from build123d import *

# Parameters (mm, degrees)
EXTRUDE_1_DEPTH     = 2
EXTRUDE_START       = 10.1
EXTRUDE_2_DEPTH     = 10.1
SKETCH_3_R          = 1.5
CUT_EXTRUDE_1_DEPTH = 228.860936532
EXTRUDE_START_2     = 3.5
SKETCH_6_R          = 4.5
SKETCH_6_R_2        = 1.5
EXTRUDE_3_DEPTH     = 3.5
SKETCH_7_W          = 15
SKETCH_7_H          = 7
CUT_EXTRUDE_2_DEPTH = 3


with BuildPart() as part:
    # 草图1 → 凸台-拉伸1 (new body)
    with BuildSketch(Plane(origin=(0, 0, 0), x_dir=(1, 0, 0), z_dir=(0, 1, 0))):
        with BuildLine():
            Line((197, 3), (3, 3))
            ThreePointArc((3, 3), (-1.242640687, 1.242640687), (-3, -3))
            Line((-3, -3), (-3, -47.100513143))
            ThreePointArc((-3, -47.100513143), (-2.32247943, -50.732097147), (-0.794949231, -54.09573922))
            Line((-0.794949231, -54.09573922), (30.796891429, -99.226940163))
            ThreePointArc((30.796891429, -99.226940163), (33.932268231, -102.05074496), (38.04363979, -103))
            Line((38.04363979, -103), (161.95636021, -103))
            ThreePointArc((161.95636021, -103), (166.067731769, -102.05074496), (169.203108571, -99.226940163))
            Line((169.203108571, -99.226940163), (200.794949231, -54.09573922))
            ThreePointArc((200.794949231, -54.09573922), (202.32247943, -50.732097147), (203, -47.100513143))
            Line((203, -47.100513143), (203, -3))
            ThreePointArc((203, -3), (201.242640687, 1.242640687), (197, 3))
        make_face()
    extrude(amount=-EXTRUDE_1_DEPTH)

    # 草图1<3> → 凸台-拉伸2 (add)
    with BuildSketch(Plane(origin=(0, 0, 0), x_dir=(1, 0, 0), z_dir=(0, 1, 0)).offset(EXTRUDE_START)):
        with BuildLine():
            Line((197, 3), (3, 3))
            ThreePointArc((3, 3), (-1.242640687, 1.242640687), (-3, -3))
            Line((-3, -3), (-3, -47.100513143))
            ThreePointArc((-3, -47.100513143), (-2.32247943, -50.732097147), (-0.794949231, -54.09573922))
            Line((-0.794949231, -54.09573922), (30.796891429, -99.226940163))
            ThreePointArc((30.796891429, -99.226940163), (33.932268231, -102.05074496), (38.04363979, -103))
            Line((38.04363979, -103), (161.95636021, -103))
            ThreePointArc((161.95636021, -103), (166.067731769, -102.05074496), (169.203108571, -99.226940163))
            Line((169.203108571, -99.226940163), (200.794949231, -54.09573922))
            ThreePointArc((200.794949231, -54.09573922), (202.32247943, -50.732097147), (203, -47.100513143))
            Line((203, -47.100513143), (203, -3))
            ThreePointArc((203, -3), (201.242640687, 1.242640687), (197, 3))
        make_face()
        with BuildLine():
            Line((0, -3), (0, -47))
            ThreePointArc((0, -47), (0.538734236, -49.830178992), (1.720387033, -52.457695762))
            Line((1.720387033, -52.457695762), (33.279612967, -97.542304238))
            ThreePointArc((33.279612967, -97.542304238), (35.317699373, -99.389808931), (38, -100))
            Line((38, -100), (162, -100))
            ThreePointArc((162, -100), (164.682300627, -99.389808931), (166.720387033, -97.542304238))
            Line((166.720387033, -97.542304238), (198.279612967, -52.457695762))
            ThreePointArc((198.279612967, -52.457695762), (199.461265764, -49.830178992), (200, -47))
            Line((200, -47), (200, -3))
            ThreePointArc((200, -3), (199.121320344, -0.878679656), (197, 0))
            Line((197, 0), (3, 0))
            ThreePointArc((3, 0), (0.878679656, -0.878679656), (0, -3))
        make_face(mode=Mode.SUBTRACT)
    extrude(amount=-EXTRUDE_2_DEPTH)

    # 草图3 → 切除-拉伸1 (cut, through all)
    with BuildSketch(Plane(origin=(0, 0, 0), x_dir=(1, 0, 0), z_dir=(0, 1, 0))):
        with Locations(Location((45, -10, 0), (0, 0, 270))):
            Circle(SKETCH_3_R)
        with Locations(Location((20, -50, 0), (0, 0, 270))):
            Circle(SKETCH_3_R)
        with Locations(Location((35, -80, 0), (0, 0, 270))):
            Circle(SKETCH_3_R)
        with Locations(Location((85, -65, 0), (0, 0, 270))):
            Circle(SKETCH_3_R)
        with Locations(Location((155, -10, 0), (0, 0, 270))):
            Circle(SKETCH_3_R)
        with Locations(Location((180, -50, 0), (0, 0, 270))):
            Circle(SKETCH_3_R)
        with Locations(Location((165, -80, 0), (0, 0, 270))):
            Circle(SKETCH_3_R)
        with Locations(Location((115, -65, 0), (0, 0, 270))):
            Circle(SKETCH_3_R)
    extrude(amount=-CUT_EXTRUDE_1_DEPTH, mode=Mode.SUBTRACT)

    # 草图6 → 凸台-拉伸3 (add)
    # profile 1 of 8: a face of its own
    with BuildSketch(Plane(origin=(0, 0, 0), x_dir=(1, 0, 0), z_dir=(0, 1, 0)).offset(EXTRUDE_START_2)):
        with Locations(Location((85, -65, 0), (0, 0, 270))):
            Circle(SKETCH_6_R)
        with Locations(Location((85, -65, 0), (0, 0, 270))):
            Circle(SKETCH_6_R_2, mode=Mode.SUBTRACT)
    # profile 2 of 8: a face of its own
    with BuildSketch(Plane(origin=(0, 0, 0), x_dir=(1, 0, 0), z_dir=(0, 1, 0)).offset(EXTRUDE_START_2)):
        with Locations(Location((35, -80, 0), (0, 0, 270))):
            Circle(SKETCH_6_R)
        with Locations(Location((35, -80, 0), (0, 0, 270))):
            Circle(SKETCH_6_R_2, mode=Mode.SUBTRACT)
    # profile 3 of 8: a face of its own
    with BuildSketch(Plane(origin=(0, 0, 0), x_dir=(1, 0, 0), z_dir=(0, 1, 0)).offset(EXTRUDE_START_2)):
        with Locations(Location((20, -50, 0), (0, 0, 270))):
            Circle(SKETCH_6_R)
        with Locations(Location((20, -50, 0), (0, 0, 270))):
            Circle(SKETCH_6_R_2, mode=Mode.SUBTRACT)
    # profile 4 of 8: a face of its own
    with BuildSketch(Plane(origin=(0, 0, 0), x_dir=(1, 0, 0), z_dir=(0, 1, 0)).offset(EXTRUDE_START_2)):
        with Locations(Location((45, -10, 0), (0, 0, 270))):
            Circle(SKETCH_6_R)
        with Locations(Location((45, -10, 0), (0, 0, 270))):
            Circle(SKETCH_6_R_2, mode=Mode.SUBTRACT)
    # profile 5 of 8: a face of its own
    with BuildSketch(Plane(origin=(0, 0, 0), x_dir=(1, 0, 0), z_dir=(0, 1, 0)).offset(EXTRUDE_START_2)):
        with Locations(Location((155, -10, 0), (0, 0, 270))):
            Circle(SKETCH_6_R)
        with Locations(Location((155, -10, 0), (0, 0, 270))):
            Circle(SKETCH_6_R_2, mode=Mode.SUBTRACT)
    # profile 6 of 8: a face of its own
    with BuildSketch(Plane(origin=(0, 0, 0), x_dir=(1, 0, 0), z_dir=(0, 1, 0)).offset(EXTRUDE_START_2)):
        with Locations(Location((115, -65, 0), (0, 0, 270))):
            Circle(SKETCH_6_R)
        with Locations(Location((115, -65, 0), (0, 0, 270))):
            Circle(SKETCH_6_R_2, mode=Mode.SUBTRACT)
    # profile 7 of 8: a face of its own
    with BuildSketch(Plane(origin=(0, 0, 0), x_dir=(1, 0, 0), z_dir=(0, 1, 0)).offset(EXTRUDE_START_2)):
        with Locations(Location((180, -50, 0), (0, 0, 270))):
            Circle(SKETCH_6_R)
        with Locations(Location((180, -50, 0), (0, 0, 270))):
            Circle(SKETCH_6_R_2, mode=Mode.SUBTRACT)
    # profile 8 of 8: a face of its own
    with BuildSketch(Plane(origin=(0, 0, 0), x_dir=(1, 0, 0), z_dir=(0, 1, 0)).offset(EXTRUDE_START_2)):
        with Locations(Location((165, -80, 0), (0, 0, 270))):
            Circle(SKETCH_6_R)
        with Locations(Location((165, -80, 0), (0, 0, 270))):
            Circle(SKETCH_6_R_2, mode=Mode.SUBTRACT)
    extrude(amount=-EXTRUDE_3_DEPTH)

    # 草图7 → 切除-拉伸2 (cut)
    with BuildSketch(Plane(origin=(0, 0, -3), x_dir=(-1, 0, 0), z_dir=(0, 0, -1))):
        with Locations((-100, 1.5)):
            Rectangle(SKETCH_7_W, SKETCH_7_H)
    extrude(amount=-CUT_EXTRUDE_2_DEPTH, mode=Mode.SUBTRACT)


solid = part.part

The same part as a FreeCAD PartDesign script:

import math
import FreeCAD as App
import Part
import Sketcher

V = App.Vector
Q = App.Units.Quantity


def add_polygon(sketch, points):
    """Adds a closed chain of lines whose ends are joined by coincident constraints."""
    first, n = sketch.GeometryCount, len(points)
    for a, b in zip(points, points[1:] + points[:1]):
        sketch.addGeometry(Part.LineSegment(App.Vector(*a, 0), App.Vector(*b, 0)), False)
    for i in range(n):
        sketch.addConstraint(Sketcher.Constraint("Coincident", first + i, 2, first + (i + 1) % n, 1))

doc = App.newDocument("Part")
body = doc.addObject("PartDesign::Body", "Body")

# Sketch on XZ plane
sketch1 = body.newObject("Sketcher::SketchObject", "Sketch")
sketch1.AttachmentSupport = (doc.getObject("XZ_Plane"), [""])
sketch1.MapMode = "FlatFace"
sketch1.addGeometry(Part.LineSegment(V(197, -3, 0), V(3, -3, 0)), False)
sketch1.addGeometry(Part.ArcOfCircle(Part.Circle(V(3, 3, 0), V(0, 0, 1), 6), math.radians(180), math.radians(270)), False)
sketch1.addGeometry(Part.LineSegment(V(-3, 3, 0), V(-3, 47, 0)), False)
sketch1.addGeometry(Part.ArcOfCircle(Part.Circle(V(12, 46, 0), V(0, 0, 1), 15), math.radians(149), math.radians(176)), False)
sketch1.addGeometry(Part.LineSegment(V(-1, 54, 0), V(31, 99, 0)), False)
sketch1.addGeometry(Part.ArcOfCircle(Part.Circle(V(38, 95, 0), V(0, 0, 1), 8), math.radians(88), math.radians(147)), False)
sketch1.addGeometry(Part.LineSegment(V(38, 103, 0), V(162, 103, 0)), False)
sketch1.addGeometry(Part.ArcOfCircle(Part.Circle(V(162, 95, 0), V(0, 0, 1), 8), math.radians(33), math.radians(92)), False)
sketch1.addGeometry(Part.LineSegment(V(169, 99, 0), V(201, 54, 0)), False)
sketch1.addGeometry(Part.ArcOfCircle(Part.Circle(V(188, 46, 0), V(0, 0, 1), 15), math.radians(4), math.radians(31)), False)
sketch1.addGeometry(Part.LineSegment(V(203, 47, 0), V(203, 3, 0)), False)
sketch1.addGeometry(Part.ArcOfCircle(Part.Circle(V(197, 3, 0), V(0, 0, 1), 6), math.radians(-90), math.radians(0)), False)
sketch1.addConstraint(Sketcher.Constraint("Tangent", 0, 2, 1, 2))
sketch1.addConstraint(Sketcher.Constraint("Tangent", 1, 1, 2, 1))
sketch1.addConstraint(Sketcher.Constraint("Coincident", 2, 2, 3, 2))
sketch1.addConstraint(Sketcher.Constraint("Coincident", 3, 1, 4, 1))
sketch1.addConstraint(Sketcher.Constraint("Coincident", 4, 2, 5, 2))
sketch1.addConstraint(Sketcher.Constraint("Coincident", 5, 1, 6, 1))
sketch1.addConstraint(Sketcher.Constraint("Coincident", 6, 2, 7, 2))
sketch1.addConstraint(Sketcher.Constraint("Coincident", 7, 1, 8, 1))
sketch1.addConstraint(Sketcher.Constraint("Coincident", 8, 2, 9, 2))
sketch1.addConstraint(Sketcher.Constraint("Coincident", 9, 1, 10, 1))
sketch1.addConstraint(Sketcher.Constraint("Tangent", 10, 2, 11, 2))
sketch1.addConstraint(Sketcher.Constraint("Tangent", 11, 1, 0, 1))
sketch1.addConstraint(Sketcher.Constraint("Horizontal", 0))
sketch1.addConstraint(Sketcher.Constraint("Vertical", 2))
sketch1.addConstraint(Sketcher.Constraint("Horizontal", 6))
sketch1.addConstraint(Sketcher.Constraint("Vertical", 10))
sketch1.addConstraint(Sketcher.Constraint("Equal", 5, 7))
sketch1.addConstraint(Sketcher.Constraint("Equal", 3, 9))
sketch1.addConstraint(Sketcher.Constraint("Equal", 1, 11))
sketch1.addConstraint(Sketcher.Constraint("Symmetric", 0, 2, 1, 1, -1, 1))
sketch1.addConstraint(Sketcher.Constraint("Horizontal", 5, 3, 7, 3))
sketch1.addConstraint(Sketcher.Constraint("Horizontal", 3, 3, 9, 3))
sketch1.addConstraint(Sketcher.Constraint("Horizontal", 4, 2, 7, 1))
sketch1.addConstraint(Sketcher.Constraint("Horizontal", 3, 1, 8, 2))
sketch1.addConstraint(Sketcher.Constraint("Horizontal", 2, 2, 9, 1))
sketch1.addConstraint(Sketcher.Constraint("Equal", 4, 8))
sketch1.addConstraint(Sketcher.Constraint("Radius", 1, Q("6 mm")))
sketch1.addConstraint(Sketcher.Constraint("DistanceX", 0, 2, 0, 1, Q("194 mm")))
sketch1.addConstraint(Sketcher.Constraint("DistanceY", -1, 1, 5, 1, Q("103 mm")))
sketch1.addConstraint(Sketcher.Constraint("Radius", 3, Q("15.312859 mm")))
sketch1.addConstraint(Sketcher.Constraint("Radius", 5, Q("8.424518 mm")))
sketch1.addConstraint(Sketcher.Constraint("DistanceX", 6, 1, 6, 2, Q("123.91272 mm")))
sketch1.addConstraint(Sketcher.Constraint("DistanceY", 3, 1, 4, 2, Q("45.131201 mm")))
sketch1.addConstraint(Sketcher.Constraint("Distance", 4, Q("55.089651 mm")))
sketch1.addConstraint(Sketcher.Constraint("DistanceY", 2, 1, 2, 2, Q("44.100513 mm")))
sketch1.addConstraint(Sketcher.Constraint("DistanceY", -1, 1, 3, 3, Q("46.128449 mm")))
sketch1.addConstraint(Sketcher.Constraint("DistanceX", 3, 1, -1, 1, Q("0.794949 mm")))
pad1 = body.newObject("PartDesign::Pad", "Pad")
pad1.Profile = sketch1
pad1.Length = 2

# Sketch on XZ plane
sketch2 = body.newObject("Sketcher::SketchObject", "Sketch001")
sketch2.AttachmentSupport = (doc.getObject("XZ_Plane"), [""])
sketch2.MapMode = "FlatFace"
sketch2.AttachmentOffset = App.Placement(V(0, 0, -10.1), App.Rotation())
sketch2.addGeometry(Part.LineSegment(V(197, -3, 0), V(3, -3, 0)), False)
sketch2.addGeometry(Part.ArcOfCircle(Part.Circle(V(3, 3, 0), V(0, 0, 1), 6), math.radians(180), math.radians(270)), False)
sketch2.addGeometry(Part.LineSegment(V(-3, 3, 0), V(-3, 47.1, 0)), False)
sketch2.addGeometry(Part.ArcOfCircle(Part.Circle(V(12.3, 46.1, 0), V(0, 0, 1), 15.3), math.radians(149), math.radians(176)), False)
sketch2.addGeometry(Part.LineSegment(V(-0.8, 54.1, 0), V(30.8, 99.2, 0)), False)
sketch2.addGeometry(Part.ArcOfCircle(Part.Circle(V(37.8, 94.6, 0), V(0, 0, 1), 8.4), math.radians(88), math.radians(147)), False)
sketch2.addGeometry(Part.LineSegment(V(38, 103, 0), V(162, 103, 0)), False)
sketch2.addGeometry(Part.ArcOfCircle(Part.Circle(V(162.2, 94.6, 0), V(0, 0, 1), 8.4), math.radians(33), math.radians(92)), False)
sketch2.addGeometry(Part.LineSegment(V(169.2, 99.2, 0), V(200.8, 54.1, 0)), False)
sketch2.addGeometry(Part.ArcOfCircle(Part.Circle(V(187.7, 46.1, 0), V(0, 0, 1), 15.3), math.radians(4), math.radians(31)), False)
sketch2.addGeometry(Part.LineSegment(V(203, 47.1, 0), V(203, 3, 0)), False)
sketch2.addGeometry(Part.ArcOfCircle(Part.Circle(V(197, 3, 0), V(0, 0, 1), 6), math.radians(-90), math.radians(0)), False)
sketch2.addGeometry(Part.LineSegment(V(0, 47, 0), V(0, 3, 0)), False)
sketch2.addGeometry(Part.ArcOfCircle(Part.Circle(V(3, 3, 0), V(0, 0, 1), 3), math.radians(180), math.radians(270)), False)
sketch2.addGeometry(Part.LineSegment(V(3, 0, 0), V(197, 0, 0)), False)
sketch2.addGeometry(Part.ArcOfCircle(Part.Circle(V(197, 3, 0), V(0, 0, 1), 3), math.radians(-90), math.radians(0)), False)
sketch2.addGeometry(Part.LineSegment(V(200, 3, 0), V(200, 47, 0)), False)
sketch2.addGeometry(Part.ArcOfCircle(Part.Circle(V(187.7, 46.1, 0), V(0, 0, 1), 12.3), math.radians(4), math.radians(31)), False)
sketch2.addGeometry(Part.LineSegment(V(198.3, 52.5, 0), V(166.7, 97.5, 0)), False)
sketch2.addGeometry(Part.ArcOfCircle(Part.Circle(V(162.2, 94.6, 0), V(0, 0, 1), 5.4), math.radians(33), math.radians(92)), False)
sketch2.addGeometry(Part.LineSegment(V(162, 100, 0), V(38, 100, 0)), False)
sketch2.addGeometry(Part.ArcOfCircle(Part.Circle(V(37.8, 94.6, 0), V(0, 0, 1), 5.4), math.radians(88), math.radians(147)), False)
sketch2.addGeometry(Part.LineSegment(V(33.3, 97.5, 0), V(1.7, 52.5, 0)), False)
sketch2.addGeometry(Part.ArcOfCircle(Part.Circle(V(12.3, 46.1, 0), V(0, 0, 1), 12.3), math.radians(149), math.radians(176)), False)
sketch2.addConstraint(Sketcher.Constraint("Tangent", 0, 2, 1, 2))
sketch2.addConstraint(Sketcher.Constraint("Tangent", 1, 1, 2, 1))
sketch2.addConstraint(Sketcher.Constraint("Coincident", 2, 2, 3, 2))
sketch2.addConstraint(Sketcher.Constraint("Coincident", 3, 1, 4, 1))
sketch2.addConstraint(Sketcher.Constraint("Coincident", 4, 2, 5, 2))
sketch2.addConstraint(Sketcher.Constraint("Coincident", 5, 1, 6, 1))
sketch2.addConstraint(Sketcher.Constraint("Coincident", 6, 2, 7, 2))
sketch2.addConstraint(Sketcher.Constraint("Coincident", 7, 1, 8, 1))
sketch2.addConstraint(Sketcher.Constraint("Coincident", 8, 2, 9, 2))
sketch2.addConstraint(Sketcher.Constraint("Coincident", 9, 1, 10, 1))
sketch2.addConstraint(Sketcher.Constraint("Tangent", 10, 2, 11, 2))
sketch2.addConstraint(Sketcher.Constraint("Tangent", 11, 1, 0, 1))
sketch2.addConstraint(Sketcher.Constraint("Tangent", 12, 2, 13, 1))
sketch2.addConstraint(Sketcher.Constraint("Tangent", 13, 2, 14, 1))
sketch2.addConstraint(Sketcher.Constraint("Tangent", 14, 2, 15, 1))
sketch2.addConstraint(Sketcher.Constraint("Tangent", 15, 2, 16, 1))
sketch2.addConstraint(Sketcher.Constraint("Coincident", 16, 2, 17, 1))
sketch2.addConstraint(Sketcher.Constraint("Coincident", 17, 2, 18, 1))
sketch2.addConstraint(Sketcher.Constraint("Coincident", 18, 2, 19, 1))
sketch2.addConstraint(Sketcher.Constraint("Coincident", 19, 2, 20, 1))
sketch2.addConstraint(Sketcher.Constraint("Coincident", 20, 2, 21, 1))
sketch2.addConstraint(Sketcher.Constraint("Coincident", 21, 2, 22, 1))
sketch2.addConstraint(Sketcher.Constraint("Coincident", 22, 2, 23, 1))
sketch2.addConstraint(Sketcher.Constraint("Coincident", 23, 2, 12, 1))
sketch2.addConstraint(Sketcher.Constraint("Horizontal", 0))
sketch2.addConstraint(Sketcher.Constraint("Vertical", 2))
sketch2.addConstraint(Sketcher.Constraint("Horizontal", 6))
sketch2.addConstraint(Sketcher.Constraint("Vertical", 10))
sketch2.addConstraint(Sketcher.Constraint("Vertical", 12))
sketch2.addConstraint(Sketcher.Constraint("Horizontal", 14))
sketch2.addConstraint(Sketcher.Constraint("Vertical", 16))
sketch2.addConstraint(Sketcher.Constraint("Horizontal", 20))
sketch2.addConstraint(Sketcher.Constraint("Coincident", 13, 3, 1, 3))
sketch2.addConstraint(Sketcher.Constraint("Coincident", 15, 3, 11, 3))
sketch2.addConstraint(Sketcher.Constraint("Coincident", 17, 3, 9, 3))
sketch2.addConstraint(Sketcher.Constraint("Coincident", 19, 3, 7, 3))
sketch2.addConstraint(Sketcher.Constraint("Coincident", 21, 3, 5, 3))
sketch2.addConstraint(Sketcher.Constraint("Coincident", 23, 3, 3, 3))
sketch2.addConstraint(Sketcher.Constraint("Equal", 5, 7))
sketch2.addConstraint(Sketcher.Constraint("Equal", 3, 9))
sketch2.addConstraint(Sketcher.Constraint("Equal", 1, 11))
sketch2.addConstraint(Sketcher.Constraint("Equal", 19, 21))
sketch2.addConstraint(Sketcher.Constraint("Equal", 17, 23))
sketch2.addConstraint(Sketcher.Constraint("Symmetric", 0, 2, 1, 1, -1, 1))
sketch2.addConstraint(Sketcher.Constraint("PointOnObject", 12, 2, -2))
sketch2.addConstraint(Sketcher.Constraint("Parallel", 8, 18))
sketch2.addConstraint(Sketcher.Constraint("Parallel", 4, 22))
sketch2.addConstraint(Sketcher.Constraint("Horizontal", 5, 3, 7, 3))
sketch2.addConstraint(Sketcher.Constraint("Horizontal", 3, 3, 9, 3))
sketch2.addConstraint(Sketcher.Constraint("Horizontal", 4, 2, 7, 1))
sketch2.addConstraint(Sketcher.Constraint("Horizontal", 3, 1, 8, 2))
sketch2.addConstraint(Sketcher.Constraint("Horizontal", 2, 2, 9, 1))
sketch2.addConstraint(Sketcher.Constraint("Horizontal", 18, 2, 21, 2))
sketch2.addConstraint(Sketcher.Constraint("Equal", 4, 8))
sketch2.addConstraint(Sketcher.Constraint("Radius", 1, Q("6 mm")))
sketch2.addConstraint(Sketcher.Constraint("DistanceX", 0, 2, 0, 1, Q("194 mm")))
sketch2.addConstraint(Sketcher.Constraint("DistanceX", 20, 2, 20, 1, Q("124 mm")))
sketch2.addConstraint(Sketcher.Constraint("DistanceY", 12, 2, 12, 1, Q("44 mm")))
sketch2.addConstraint(Sketcher.Constraint("DistanceY", -1, 1, 5, 1, Q("103 mm")))
sketch2.addConstraint(Sketcher.Constraint("DistanceY", -1, 1, 19, 2, Q("100 mm")))
sketch2.addConstraint(Sketcher.Constraint("Radius", 3, Q("15.312859 mm")))
sketch2.addConstraint(Sketcher.Constraint("Radius", 17, Q("12.312859 mm")))
sketch2.addConstraint(Sketcher.Constraint("Radius", 5, Q("8.424518 mm")))
sketch2.addConstraint(Sketcher.Constraint("Radius", 19, Q("5.424518 mm")))
sketch2.addConstraint(Sketcher.Constraint("DistanceX", 6, 1, 6, 2, Q("123.91272 mm")))
sketch2.addConstraint(Sketcher.Constraint("DistanceY", 3, 1, 4, 2, Q("45.131201 mm")))
sketch2.addConstraint(Sketcher.Constraint("Distance", 4, Q("55.089651 mm")))
sketch2.addConstraint(Sketcher.Constraint("Distance", 18, Q("55.032778 mm")))
sketch2.addConstraint(Sketcher.Constraint("DistanceY", 2, 1, 2, 2, Q("44.100513 mm")))
pad2 = body.newObject("PartDesign::Pad", "Pad001")
pad2.Profile = sketch2
pad2.Length = 10.1

# Sketch on XZ plane
sketch3 = body.newObject("Sketcher::SketchObject", "Sketch002")
sketch3.AttachmentSupport = (doc.getObject("XZ_Plane"), [""])
sketch3.MapMode = "FlatFace"
sketch3.addGeometry(Part.Circle(V(45, 10, 0), V(0, 0, 1), 1.5), False)
sketch3.addGeometry(Part.Circle(V(20, 50, 0), V(0, 0, 1), 1.5), False)
sketch3.addGeometry(Part.Circle(V(35, 80, 0), V(0, 0, 1), 1.5), False)
sketch3.addGeometry(Part.Circle(V(85, 65, 0), V(0, 0, 1), 1.5), False)
sketch3.addGeometry(Part.Circle(V(155, 10, 0), V(0, 0, 1), 1.5), False)
sketch3.addGeometry(Part.Circle(V(180, 50, 0), V(0, 0, 1), 1.5), False)
sketch3.addGeometry(Part.Circle(V(165, 80, 0), V(0, 0, 1), 1.5), False)
sketch3.addGeometry(Part.Circle(V(115, 65, 0), V(0, 0, 1), 1.5), False)
sketch3.addConstraint(Sketcher.Constraint("Equal", 0, 1))
sketch3.addConstraint(Sketcher.Constraint("Equal", 1, 2))
sketch3.addConstraint(Sketcher.Constraint("Equal", 2, 3))
sketch3.addConstraint(Sketcher.Constraint("Equal", 3, 4))
sketch3.addConstraint(Sketcher.Constraint("Equal", 4, 5))
sketch3.addConstraint(Sketcher.Constraint("Equal", 5, 6))
sketch3.addConstraint(Sketcher.Constraint("Equal", 6, 7))
sketch3.addConstraint(Sketcher.Constraint("Horizontal", 0, 3, 4, 3))
sketch3.addConstraint(Sketcher.Constraint("Horizontal", 1, 3, 5, 3))
sketch3.addConstraint(Sketcher.Constraint("Horizontal", 2, 3, 6, 3))
sketch3.addConstraint(Sketcher.Constraint("Horizontal", 3, 3, 7, 3))
sketch3.addConstraint(Sketcher.Constraint("Diameter", 0, Q("3 mm")))
sketch3.addConstraint(Sketcher.Constraint("DistanceX", -1, 1, 0, 3, Q("45 mm")))
sketch3.addConstraint(Sketcher.Constraint("DistanceY", -1, 1, 0, 3, Q("10 mm")))
sketch3.addConstraint(Sketcher.Constraint("DistanceX", -1, 1, 1, 3, Q("20 mm")))
sketch3.addConstraint(Sketcher.Constraint("DistanceY", -1, 1, 1, 3, Q("50 mm")))
sketch3.addConstraint(Sketcher.Constraint("DistanceX", -1, 1, 2, 3, Q("35 mm")))
sketch3.addConstraint(Sketcher.Constraint("DistanceY", -1, 1, 2, 3, Q("80 mm")))
sketch3.addConstraint(Sketcher.Constraint("DistanceX", -1, 1, 3, 3, Q("85 mm")))
sketch3.addConstraint(Sketcher.Constraint("DistanceY", -1, 1, 3, 3, Q("65 mm")))
sketch3.addConstraint(Sketcher.Constraint("DistanceX", -1, 1, 4, 3, Q("155 mm")))
sketch3.addConstraint(Sketcher.Constraint("DistanceX", -1, 1, 5, 3, Q("180 mm")))
sketch3.addConstraint(Sketcher.Constraint("DistanceX", -1, 1, 6, 3, Q("165 mm")))
sketch3.addConstraint(Sketcher.Constraint("DistanceX", -1, 1, 7, 3, Q("115 mm")))
pocket1 = body.newObject("PartDesign::Pocket", "Pocket")
pocket1.Profile = sketch3
pocket1.Type = "ThroughAll"
pocket1.Reversed = True

# Sketch on XZ plane
sketch4 = body.newObject("Sketcher::SketchObject", "Sketch003")
sketch4.AttachmentSupport = (doc.getObject("XZ_Plane"), [""])
sketch4.MapMode = "FlatFace"
sketch4.AttachmentOffset = App.Placement(V(0, 0, -3.5), App.Rotation())
sketch4.addGeometry(Part.Circle(V(85, 65, 0), V(0, 0, 1), 4.5), False)
sketch4.addGeometry(Part.Circle(V(85, 65, 0), V(0, 0, 1), 1.5), False)
sketch4.addGeometry(Part.Circle(V(35, 80, 0), V(0, 0, 1), 4.5), False)
sketch4.addGeometry(Part.Circle(V(35, 80, 0), V(0, 0, 1), 1.5), False)
sketch4.addGeometry(Part.Circle(V(20, 50, 0), V(0, 0, 1), 4.5), False)
sketch4.addGeometry(Part.Circle(V(20, 50, 0), V(0, 0, 1), 1.5), False)
sketch4.addGeometry(Part.Circle(V(45, 10, 0), V(0, 0, 1), 4.5), False)
sketch4.addGeometry(Part.Circle(V(45, 10, 0), V(0, 0, 1), 1.5), False)
sketch4.addGeometry(Part.Circle(V(155, 10, 0), V(0, 0, 1), 4.5), False)
sketch4.addGeometry(Part.Circle(V(155, 10, 0), V(0, 0, 1), 1.5), False)
sketch4.addGeometry(Part.Circle(V(115, 65, 0), V(0, 0, 1), 4.5), False)
sketch4.addGeometry(Part.Circle(V(115, 65, 0), V(0, 0, 1), 1.5), False)
sketch4.addGeometry(Part.Circle(V(180, 50, 0), V(0, 0, 1), 4.5), False)
sketch4.addGeometry(Part.Circle(V(180, 50, 0), V(0, 0, 1), 1.5), False)
sketch4.addGeometry(Part.Circle(V(165, 80, 0), V(0, 0, 1), 4.5), False)
sketch4.addGeometry(Part.Circle(V(165, 80, 0), V(0, 0, 1), 1.5), False)
sketch4.addConstraint(Sketcher.Constraint("Coincident", 1, 3, 0, 3))
sketch4.addConstraint(Sketcher.Constraint("Coincident", 3, 3, 2, 3))
sketch4.addConstraint(Sketcher.Constraint("Coincident", 5, 3, 4, 3))
sketch4.addConstraint(Sketcher.Constraint("Coincident", 7, 3, 6, 3))
sketch4.addConstraint(Sketcher.Constraint("Coincident", 9, 3, 8, 3))
sketch4.addConstraint(Sketcher.Constraint("Coincident", 11, 3, 10, 3))
sketch4.addConstraint(Sketcher.Constraint("Coincident", 13, 3, 12, 3))
sketch4.addConstraint(Sketcher.Constraint("Coincident", 15, 3, 14, 3))
sketch4.addConstraint(Sketcher.Constraint("Equal", 0, 2))
sketch4.addConstraint(Sketcher.Constraint("Equal", 1, 3))
sketch4.addConstraint(Sketcher.Constraint("Equal", 2, 4))
sketch4.addConstraint(Sketcher.Constraint("Equal", 3, 5))
sketch4.addConstraint(Sketcher.Constraint("Equal", 4, 6))
sketch4.addConstraint(Sketcher.Constraint("Equal", 5, 7))
sketch4.addConstraint(Sketcher.Constraint("Equal", 6, 8))
sketch4.addConstraint(Sketcher.Constraint("Equal", 7, 9))
sketch4.addConstraint(Sketcher.Constraint("Equal", 8, 10))
sketch4.addConstraint(Sketcher.Constraint("Equal", 9, 11))
sketch4.addConstraint(Sketcher.Constraint("Equal", 10, 12))
sketch4.addConstraint(Sketcher.Constraint("Equal", 11, 13))
sketch4.addConstraint(Sketcher.Constraint("Equal", 12, 14))
sketch4.addConstraint(Sketcher.Constraint("Equal", 13, 15))
sketch4.addConstraint(Sketcher.Constraint("Horizontal", 7, 3, 8, 3))
sketch4.addConstraint(Sketcher.Constraint("Horizontal", 1, 3, 10, 3))
sketch4.addConstraint(Sketcher.Constraint("Horizontal", 5, 3, 12, 3))
sketch4.addConstraint(Sketcher.Constraint("Horizontal", 3, 3, 14, 3))
sketch4.addConstraint(Sketcher.Constraint("Diameter", 0, Q("9 mm")))
sketch4.addConstraint(Sketcher.Constraint("Diameter", 1, Q("3 mm")))
sketch4.addConstraint(Sketcher.Constraint("DistanceX", -1, 1, 0, 3, Q("85 mm")))
sketch4.addConstraint(Sketcher.Constraint("DistanceY", -1, 1, 0, 3, Q("65 mm")))
sketch4.addConstraint(Sketcher.Constraint("DistanceX", -1, 1, 2, 3, Q("35 mm")))
sketch4.addConstraint(Sketcher.Constraint("DistanceY", -1, 1, 2, 3, Q("80 mm")))
sketch4.addConstraint(Sketcher.Constraint("DistanceX", -1, 1, 4, 3, Q("20 mm")))
sketch4.addConstraint(Sketcher.Constraint("DistanceY", -1, 1, 4, 3, Q("50 mm")))
sketch4.addConstraint(Sketcher.Constraint("DistanceX", -1, 1, 6, 3, Q("45 mm")))
sketch4.addConstraint(Sketcher.Constraint("DistanceY", -1, 1, 6, 3, Q("10 mm")))
sketch4.addConstraint(Sketcher.Constraint("DistanceX", -1, 1, 8, 3, Q("155 mm")))
sketch4.addConstraint(Sketcher.Constraint("DistanceX", -1, 1, 10, 3, Q("115 mm")))
sketch4.addConstraint(Sketcher.Constraint("DistanceX", -1, 1, 12, 3, Q("180 mm")))
sketch4.addConstraint(Sketcher.Constraint("DistanceX", -1, 1, 14, 3, Q("165 mm")))
pad3 = body.newObject("PartDesign::Pad", "Pad002")
pad3.Profile = sketch4
pad3.Length = 3.5

# Sketch on XY plane
sketch5 = body.newObject("Sketcher::SketchObject", "Sketch004")
sketch5.AttachmentSupport = (doc.getObject("XY_Plane"), [""])
sketch5.MapMode = "FlatFace"
sketch5.AttachmentOffset = App.Placement(V(0, 0, -3), App.Rotation())
add_polygon(sketch5, [(108, 5), (108, -2), (92, -2), (92, 5)])  # lines 0-3
sketch5.addConstraint(Sketcher.Constraint("Vertical", 0))
sketch5.addConstraint(Sketcher.Constraint("Horizontal", 1))
sketch5.addConstraint(Sketcher.Constraint("Vertical", 2))
sketch5.addConstraint(Sketcher.Constraint("Horizontal", 3))
sketch5.addConstraint(Sketcher.Constraint("DistanceX", 1, 2, 1, 1, Q("15 mm")))
sketch5.addConstraint(Sketcher.Constraint("DistanceY", 0, 2, 0, 1, Q("7 mm")))
sketch5.addConstraint(Sketcher.Constraint("DistanceY", 0, 2, -1, 1, Q("2 mm")))
sketch5.addConstraint(Sketcher.Constraint("DistanceX", -1, 1, 0, 2, Q("107.5 mm")))
pocket2 = body.newObject("PartDesign::Pocket", "Pocket001")
pocket2.Profile = sketch5
pocket2.Length = 3
pocket2.Reversed = True

doc.recompute()
